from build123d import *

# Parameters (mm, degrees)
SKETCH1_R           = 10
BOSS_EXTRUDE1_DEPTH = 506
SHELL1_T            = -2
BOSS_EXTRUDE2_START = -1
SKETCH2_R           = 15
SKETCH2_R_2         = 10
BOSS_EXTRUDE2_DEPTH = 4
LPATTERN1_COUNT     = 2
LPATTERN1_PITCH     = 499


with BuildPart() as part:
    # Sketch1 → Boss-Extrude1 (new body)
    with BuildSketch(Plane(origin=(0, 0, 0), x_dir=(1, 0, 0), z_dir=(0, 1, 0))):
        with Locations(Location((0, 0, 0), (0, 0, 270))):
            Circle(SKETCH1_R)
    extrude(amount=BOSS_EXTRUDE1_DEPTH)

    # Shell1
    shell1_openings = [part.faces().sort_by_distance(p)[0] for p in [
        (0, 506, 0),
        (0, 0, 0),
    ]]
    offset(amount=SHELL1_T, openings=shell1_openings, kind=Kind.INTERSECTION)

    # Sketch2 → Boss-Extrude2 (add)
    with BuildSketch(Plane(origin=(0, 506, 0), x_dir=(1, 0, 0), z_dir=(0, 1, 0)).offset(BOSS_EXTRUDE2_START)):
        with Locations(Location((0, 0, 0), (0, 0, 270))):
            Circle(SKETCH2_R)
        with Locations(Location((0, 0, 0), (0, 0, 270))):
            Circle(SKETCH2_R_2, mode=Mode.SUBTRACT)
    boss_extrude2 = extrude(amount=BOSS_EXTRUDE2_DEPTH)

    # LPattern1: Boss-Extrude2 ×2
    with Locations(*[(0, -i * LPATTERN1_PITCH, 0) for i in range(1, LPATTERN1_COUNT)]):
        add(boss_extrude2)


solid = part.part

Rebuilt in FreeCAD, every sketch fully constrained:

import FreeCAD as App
import Part
import Sketcher
from FreeCAD import Vector


def faces_at(feature, points):
    """Names of the faces that lie closest to the given points."""
    faces = feature.Shape.Faces
    near = lambda p: min(range(len(faces)), key=lambda i: faces[i].distToShape(Part.Vertex(*p))[0])
    return sorted({f"Face{near(p) + 1}" for p in points})

doc = App.newDocument("Part")
body = doc.addObject("PartDesign::Body", "Body")

# Sketch on XZ plane
sketch1 = body.newObject("Sketcher::SketchObject", "Sketch")
sketch1.AttachmentSupport = (doc.getObject("XZ_Plane"), [""])
sketch1.MapMode = "FlatFace"
sketch1.addGeometry(Part.Circle(Vector(0, 0, 0), Vector(0, 0, 1), 10), False)
sketch1.addConstraint([
    Sketcher.Constraint("Coincident", 0, 3, -1, 1),
    Sketcher.Constraint("Diameter", 0, 20.0),
])
pad1 = body.newObject("PartDesign::Pad", "Pad")
pad1.Profile = sketch1
pad1.Length = 506
pad1.Reversed = True
doc.recompute()

thickness = body.newObject("PartDesign::Thickness", "Thickness")
thickness.Base = (pad1, faces_at(pad1, [(0, 506, 0), (0, 0, 0)]))
thickness.Value = 2
thickness.Reversed = True
thickness.Join = "Intersection"

# Sketch on XZ plane
sketch2 = body.newObject("Sketcher::SketchObject", "Sketch001")
sketch2.AttachmentSupport = (doc.getObject("XZ_Plane"), [""])
sketch2.MapMode = "FlatFace"
sketch2.AttachmentOffset = App.Placement(Vector(0, 0, -505), App.Rotation())
sketch2.addGeometry([
    Part.Circle(Vector(0, 0, 0), Vector(0, 0, 1), 15),
    Part.Circle(Vector(0, 0, 0), Vector(0, 0, 1), 10),
], False)
sketch2.addConstraint([
    Sketcher.Constraint("Coincident", 0, 3, -1, 1),
    Sketcher.Constraint("Coincident", 1, 3, -1, 1),
    Sketcher.Constraint("Diameter", 0, 30.0),
    Sketcher.Constraint("Diameter", 1, 20.0),
])
pad2 = body.newObject("PartDesign::Pad", "Pad001")
pad2.Profile = sketch2
pad2.Length = 4
pad2.Reversed = True
doc.recompute()

linearpattern = body.newObject("PartDesign::LinearPattern", "LinearPattern")
linearpattern.Originals = [pad2]
linearpattern.Direction = (doc.getObject("Y_Axis"), [""])
linearpattern.Mode = "offset"
linearpattern.Offset = 499
linearpattern.Occurrences = 2
linearpattern.Reversed = True
body.Tip = linearpattern

doc.recompute()
